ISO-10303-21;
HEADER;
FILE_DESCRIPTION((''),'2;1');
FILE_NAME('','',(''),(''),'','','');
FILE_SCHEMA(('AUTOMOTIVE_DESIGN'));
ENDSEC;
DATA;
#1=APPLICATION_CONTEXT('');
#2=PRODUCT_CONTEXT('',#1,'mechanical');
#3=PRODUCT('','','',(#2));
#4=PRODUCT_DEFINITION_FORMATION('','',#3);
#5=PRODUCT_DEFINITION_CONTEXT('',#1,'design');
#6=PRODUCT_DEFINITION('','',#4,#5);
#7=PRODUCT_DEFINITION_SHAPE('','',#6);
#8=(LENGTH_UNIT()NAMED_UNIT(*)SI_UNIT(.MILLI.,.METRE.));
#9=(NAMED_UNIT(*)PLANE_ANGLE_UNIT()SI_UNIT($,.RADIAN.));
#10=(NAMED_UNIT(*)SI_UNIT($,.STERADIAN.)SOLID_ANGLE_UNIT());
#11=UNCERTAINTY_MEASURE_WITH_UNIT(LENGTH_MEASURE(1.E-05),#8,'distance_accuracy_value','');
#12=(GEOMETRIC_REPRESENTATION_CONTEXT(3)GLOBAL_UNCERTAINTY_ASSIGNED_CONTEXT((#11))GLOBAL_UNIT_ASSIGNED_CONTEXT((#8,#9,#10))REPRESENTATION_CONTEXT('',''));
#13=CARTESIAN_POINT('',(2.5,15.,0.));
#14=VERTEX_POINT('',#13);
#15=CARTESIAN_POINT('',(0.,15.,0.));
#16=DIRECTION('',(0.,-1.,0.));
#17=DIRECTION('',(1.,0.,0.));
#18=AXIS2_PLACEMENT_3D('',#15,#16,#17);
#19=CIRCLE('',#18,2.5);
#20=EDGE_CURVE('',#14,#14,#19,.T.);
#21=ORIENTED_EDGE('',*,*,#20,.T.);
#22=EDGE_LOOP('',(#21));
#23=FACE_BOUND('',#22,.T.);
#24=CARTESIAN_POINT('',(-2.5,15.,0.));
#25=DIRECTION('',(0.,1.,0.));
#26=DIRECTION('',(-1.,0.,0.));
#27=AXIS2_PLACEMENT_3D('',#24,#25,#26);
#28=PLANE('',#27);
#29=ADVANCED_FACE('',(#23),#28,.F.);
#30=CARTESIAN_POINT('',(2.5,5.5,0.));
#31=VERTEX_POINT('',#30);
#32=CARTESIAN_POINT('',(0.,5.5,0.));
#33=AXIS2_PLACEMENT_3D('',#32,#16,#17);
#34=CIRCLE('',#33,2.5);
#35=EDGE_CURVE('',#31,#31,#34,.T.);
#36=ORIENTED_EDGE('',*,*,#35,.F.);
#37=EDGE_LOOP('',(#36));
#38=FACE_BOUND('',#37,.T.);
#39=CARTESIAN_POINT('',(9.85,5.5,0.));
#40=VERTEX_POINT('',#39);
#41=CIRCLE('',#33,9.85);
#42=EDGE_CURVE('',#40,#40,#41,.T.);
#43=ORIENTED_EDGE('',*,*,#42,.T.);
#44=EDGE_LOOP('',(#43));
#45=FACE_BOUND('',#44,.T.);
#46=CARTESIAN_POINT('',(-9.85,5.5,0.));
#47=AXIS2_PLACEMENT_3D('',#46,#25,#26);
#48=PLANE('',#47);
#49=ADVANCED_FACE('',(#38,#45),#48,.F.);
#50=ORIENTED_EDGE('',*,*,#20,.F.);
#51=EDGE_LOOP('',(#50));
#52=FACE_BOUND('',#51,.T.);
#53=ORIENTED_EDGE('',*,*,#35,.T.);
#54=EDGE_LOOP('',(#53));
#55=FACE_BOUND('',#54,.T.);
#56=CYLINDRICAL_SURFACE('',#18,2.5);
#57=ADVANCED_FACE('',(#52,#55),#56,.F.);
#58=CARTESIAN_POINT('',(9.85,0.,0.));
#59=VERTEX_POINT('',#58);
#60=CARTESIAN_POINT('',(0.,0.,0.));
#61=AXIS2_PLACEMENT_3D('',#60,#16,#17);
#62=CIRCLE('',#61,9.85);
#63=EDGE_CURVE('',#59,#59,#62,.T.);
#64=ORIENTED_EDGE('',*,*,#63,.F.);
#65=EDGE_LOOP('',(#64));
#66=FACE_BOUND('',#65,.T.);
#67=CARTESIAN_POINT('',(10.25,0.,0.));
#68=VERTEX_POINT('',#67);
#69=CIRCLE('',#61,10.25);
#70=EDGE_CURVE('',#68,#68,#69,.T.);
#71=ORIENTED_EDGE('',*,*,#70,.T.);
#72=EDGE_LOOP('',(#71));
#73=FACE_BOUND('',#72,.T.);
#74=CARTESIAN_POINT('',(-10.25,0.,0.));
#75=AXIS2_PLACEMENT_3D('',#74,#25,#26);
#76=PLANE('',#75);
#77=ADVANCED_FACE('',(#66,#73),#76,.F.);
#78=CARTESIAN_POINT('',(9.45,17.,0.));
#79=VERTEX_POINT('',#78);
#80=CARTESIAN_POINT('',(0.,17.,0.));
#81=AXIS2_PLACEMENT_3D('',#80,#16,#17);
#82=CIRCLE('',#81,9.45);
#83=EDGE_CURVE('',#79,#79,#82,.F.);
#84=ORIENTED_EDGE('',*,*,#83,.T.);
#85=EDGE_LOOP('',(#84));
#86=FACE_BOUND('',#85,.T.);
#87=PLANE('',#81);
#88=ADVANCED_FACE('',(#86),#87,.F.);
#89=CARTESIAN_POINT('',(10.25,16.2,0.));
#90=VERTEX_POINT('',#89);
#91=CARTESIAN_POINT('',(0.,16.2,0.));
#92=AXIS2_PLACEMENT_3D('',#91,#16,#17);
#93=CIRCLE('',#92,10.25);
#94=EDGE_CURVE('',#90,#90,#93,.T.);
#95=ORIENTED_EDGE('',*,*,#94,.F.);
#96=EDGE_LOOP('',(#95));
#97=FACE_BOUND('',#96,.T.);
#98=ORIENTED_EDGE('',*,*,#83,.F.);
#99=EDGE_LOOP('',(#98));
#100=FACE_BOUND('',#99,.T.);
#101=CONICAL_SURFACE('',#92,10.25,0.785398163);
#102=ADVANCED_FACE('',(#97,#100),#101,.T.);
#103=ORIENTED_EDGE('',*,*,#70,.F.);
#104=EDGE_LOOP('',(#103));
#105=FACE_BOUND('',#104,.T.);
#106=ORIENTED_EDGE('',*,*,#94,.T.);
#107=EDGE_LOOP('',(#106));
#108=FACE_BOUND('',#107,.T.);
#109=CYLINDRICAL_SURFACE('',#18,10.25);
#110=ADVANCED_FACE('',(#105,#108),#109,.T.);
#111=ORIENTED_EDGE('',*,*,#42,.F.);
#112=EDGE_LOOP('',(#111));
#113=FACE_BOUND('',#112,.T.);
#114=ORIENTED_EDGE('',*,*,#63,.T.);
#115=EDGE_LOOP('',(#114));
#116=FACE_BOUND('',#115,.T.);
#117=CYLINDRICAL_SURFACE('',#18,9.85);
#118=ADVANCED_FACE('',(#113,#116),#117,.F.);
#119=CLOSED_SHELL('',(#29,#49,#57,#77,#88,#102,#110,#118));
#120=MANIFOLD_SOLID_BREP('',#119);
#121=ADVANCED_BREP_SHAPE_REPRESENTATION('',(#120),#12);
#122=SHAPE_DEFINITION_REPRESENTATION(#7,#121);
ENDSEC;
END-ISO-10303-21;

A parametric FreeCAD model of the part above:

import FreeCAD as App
import Part
import Sketcher
from FreeCAD import Vector
Q = App.Units.Quantity


def edges_at(feature, points):
    """Names of the edges that pass closest to the given points."""
    edges = feature.Shape.Edges
    near = lambda p: min(range(len(edges)), key=lambda i: edges[i].distToShape(Part.Vertex(*p))[0])
    return sorted({f"Edge{near(p) + 1}" for p in points})

doc = App.newDocument("Part")
body = doc.addObject("PartDesign::Body", "Body")

sketch1 = doc.addObject("Sketcher::SketchObject", "Sketch")
body.addObject(sketch1)
sketch1.AttachmentSupport = (doc.XY_Plane, [""])
sketch1.MapMode = "FlatFace"
sketch1.addGeometry([
    Part.LineSegment(Vector(-2.5, 5.5, 0), Vector(-2.5, 15, 0)),
    Part.LineSegment(Vector(-2.5, 15, 0), Vector(0, 15, 0)),
    Part.LineSegment(Vector(0, 15, 0), Vector(0, 17, 0)),
    Part.LineSegment(Vector(0, 17, 0), Vector(-10.25, 17, 0)),
    Part.LineSegment(Vector(-10.25, 17, 0), Vector(-10.25, 0, 0)),
    Part.LineSegment(Vector(-10.25, 0, 0), Vector(-9.85, 0, 0)),
    Part.LineSegment(Vector(-9.85, 0, 0), Vector(-9.85, 5.5, 0)),
    Part.LineSegment(Vector(-9.85, 5.5, 0), Vector(-2.5, 5.5, 0)),
], False)
sketch1.addConstraint([
    Sketcher.Constraint("Coincident", 0, 2, 1, 1),
    Sketcher.Constraint("Coincident", 1, 2, 2, 1),
    Sketcher.Constraint("Coincident", 2, 2, 3, 1),
    Sketcher.Constraint("Coincident", 3, 2, 4, 1),
    Sketcher.Constraint("Coincident", 4, 2, 5, 1),
    Sketcher.Constraint("Coincident", 5, 2, 6, 1),
    Sketcher.Constraint("Coincident", 6, 2, 7, 1),
    Sketcher.Constraint("Coincident", 7, 2, 0, 1),
    Sketcher.Constraint("Vertical", 0),
    Sketcher.Constraint("Horizontal", 1),
    Sketcher.Constraint("Vertical", 2),
    Sketcher.Constraint("Horizontal", 3),
    Sketcher.Constraint("Vertical", 4),
    Sketcher.Constraint("Horizontal", 5),
    Sketcher.Constraint("Vertical", 6),
    Sketcher.Constraint("Horizontal", 7),
    Sketcher.Constraint("PointOnObject", 1, 2, -2),
    Sketcher.Constraint("PointOnObject", 4, 2, -1),
    Sketcher.Constraint("DistanceY", 2, 1, 2, 2, Q("2 mm")),
    Sketcher.Constraint("DistanceY", 4, 2, 4, 1, Q("17 mm")),
    Sketcher.Constraint("DistanceX", 1, 1, 1, 2, Q("2.5 mm")),
    Sketcher.Constraint("DistanceX", 5, 1, 5, 2, Q("0.4 mm")),
    Sketcher.Constraint("DistanceY", 0, 1, 0, 2, Q("9.5 mm")),
    Sketcher.Constraint("DistanceX", 3, 2, 3, 1, Q("10.25 mm")),
])
revolution = doc.addObject("PartDesign::Revolution", "Revolution")
body.addObject(revolution)
revolution.Profile = sketch1
revolution.ReferenceAxis = (sketch1, ["V_Axis"])
revolution.Angle = 360
doc.recompute()

chamfer = doc.addObject("PartDesign::Chamfer", "Chamfer")
body.addObject(chamfer)
chamfer.Base = (revolution, edges_at(revolution, [(-10.25, 17, 0)]))
chamfer.Size = 0.8

doc.recompute()
